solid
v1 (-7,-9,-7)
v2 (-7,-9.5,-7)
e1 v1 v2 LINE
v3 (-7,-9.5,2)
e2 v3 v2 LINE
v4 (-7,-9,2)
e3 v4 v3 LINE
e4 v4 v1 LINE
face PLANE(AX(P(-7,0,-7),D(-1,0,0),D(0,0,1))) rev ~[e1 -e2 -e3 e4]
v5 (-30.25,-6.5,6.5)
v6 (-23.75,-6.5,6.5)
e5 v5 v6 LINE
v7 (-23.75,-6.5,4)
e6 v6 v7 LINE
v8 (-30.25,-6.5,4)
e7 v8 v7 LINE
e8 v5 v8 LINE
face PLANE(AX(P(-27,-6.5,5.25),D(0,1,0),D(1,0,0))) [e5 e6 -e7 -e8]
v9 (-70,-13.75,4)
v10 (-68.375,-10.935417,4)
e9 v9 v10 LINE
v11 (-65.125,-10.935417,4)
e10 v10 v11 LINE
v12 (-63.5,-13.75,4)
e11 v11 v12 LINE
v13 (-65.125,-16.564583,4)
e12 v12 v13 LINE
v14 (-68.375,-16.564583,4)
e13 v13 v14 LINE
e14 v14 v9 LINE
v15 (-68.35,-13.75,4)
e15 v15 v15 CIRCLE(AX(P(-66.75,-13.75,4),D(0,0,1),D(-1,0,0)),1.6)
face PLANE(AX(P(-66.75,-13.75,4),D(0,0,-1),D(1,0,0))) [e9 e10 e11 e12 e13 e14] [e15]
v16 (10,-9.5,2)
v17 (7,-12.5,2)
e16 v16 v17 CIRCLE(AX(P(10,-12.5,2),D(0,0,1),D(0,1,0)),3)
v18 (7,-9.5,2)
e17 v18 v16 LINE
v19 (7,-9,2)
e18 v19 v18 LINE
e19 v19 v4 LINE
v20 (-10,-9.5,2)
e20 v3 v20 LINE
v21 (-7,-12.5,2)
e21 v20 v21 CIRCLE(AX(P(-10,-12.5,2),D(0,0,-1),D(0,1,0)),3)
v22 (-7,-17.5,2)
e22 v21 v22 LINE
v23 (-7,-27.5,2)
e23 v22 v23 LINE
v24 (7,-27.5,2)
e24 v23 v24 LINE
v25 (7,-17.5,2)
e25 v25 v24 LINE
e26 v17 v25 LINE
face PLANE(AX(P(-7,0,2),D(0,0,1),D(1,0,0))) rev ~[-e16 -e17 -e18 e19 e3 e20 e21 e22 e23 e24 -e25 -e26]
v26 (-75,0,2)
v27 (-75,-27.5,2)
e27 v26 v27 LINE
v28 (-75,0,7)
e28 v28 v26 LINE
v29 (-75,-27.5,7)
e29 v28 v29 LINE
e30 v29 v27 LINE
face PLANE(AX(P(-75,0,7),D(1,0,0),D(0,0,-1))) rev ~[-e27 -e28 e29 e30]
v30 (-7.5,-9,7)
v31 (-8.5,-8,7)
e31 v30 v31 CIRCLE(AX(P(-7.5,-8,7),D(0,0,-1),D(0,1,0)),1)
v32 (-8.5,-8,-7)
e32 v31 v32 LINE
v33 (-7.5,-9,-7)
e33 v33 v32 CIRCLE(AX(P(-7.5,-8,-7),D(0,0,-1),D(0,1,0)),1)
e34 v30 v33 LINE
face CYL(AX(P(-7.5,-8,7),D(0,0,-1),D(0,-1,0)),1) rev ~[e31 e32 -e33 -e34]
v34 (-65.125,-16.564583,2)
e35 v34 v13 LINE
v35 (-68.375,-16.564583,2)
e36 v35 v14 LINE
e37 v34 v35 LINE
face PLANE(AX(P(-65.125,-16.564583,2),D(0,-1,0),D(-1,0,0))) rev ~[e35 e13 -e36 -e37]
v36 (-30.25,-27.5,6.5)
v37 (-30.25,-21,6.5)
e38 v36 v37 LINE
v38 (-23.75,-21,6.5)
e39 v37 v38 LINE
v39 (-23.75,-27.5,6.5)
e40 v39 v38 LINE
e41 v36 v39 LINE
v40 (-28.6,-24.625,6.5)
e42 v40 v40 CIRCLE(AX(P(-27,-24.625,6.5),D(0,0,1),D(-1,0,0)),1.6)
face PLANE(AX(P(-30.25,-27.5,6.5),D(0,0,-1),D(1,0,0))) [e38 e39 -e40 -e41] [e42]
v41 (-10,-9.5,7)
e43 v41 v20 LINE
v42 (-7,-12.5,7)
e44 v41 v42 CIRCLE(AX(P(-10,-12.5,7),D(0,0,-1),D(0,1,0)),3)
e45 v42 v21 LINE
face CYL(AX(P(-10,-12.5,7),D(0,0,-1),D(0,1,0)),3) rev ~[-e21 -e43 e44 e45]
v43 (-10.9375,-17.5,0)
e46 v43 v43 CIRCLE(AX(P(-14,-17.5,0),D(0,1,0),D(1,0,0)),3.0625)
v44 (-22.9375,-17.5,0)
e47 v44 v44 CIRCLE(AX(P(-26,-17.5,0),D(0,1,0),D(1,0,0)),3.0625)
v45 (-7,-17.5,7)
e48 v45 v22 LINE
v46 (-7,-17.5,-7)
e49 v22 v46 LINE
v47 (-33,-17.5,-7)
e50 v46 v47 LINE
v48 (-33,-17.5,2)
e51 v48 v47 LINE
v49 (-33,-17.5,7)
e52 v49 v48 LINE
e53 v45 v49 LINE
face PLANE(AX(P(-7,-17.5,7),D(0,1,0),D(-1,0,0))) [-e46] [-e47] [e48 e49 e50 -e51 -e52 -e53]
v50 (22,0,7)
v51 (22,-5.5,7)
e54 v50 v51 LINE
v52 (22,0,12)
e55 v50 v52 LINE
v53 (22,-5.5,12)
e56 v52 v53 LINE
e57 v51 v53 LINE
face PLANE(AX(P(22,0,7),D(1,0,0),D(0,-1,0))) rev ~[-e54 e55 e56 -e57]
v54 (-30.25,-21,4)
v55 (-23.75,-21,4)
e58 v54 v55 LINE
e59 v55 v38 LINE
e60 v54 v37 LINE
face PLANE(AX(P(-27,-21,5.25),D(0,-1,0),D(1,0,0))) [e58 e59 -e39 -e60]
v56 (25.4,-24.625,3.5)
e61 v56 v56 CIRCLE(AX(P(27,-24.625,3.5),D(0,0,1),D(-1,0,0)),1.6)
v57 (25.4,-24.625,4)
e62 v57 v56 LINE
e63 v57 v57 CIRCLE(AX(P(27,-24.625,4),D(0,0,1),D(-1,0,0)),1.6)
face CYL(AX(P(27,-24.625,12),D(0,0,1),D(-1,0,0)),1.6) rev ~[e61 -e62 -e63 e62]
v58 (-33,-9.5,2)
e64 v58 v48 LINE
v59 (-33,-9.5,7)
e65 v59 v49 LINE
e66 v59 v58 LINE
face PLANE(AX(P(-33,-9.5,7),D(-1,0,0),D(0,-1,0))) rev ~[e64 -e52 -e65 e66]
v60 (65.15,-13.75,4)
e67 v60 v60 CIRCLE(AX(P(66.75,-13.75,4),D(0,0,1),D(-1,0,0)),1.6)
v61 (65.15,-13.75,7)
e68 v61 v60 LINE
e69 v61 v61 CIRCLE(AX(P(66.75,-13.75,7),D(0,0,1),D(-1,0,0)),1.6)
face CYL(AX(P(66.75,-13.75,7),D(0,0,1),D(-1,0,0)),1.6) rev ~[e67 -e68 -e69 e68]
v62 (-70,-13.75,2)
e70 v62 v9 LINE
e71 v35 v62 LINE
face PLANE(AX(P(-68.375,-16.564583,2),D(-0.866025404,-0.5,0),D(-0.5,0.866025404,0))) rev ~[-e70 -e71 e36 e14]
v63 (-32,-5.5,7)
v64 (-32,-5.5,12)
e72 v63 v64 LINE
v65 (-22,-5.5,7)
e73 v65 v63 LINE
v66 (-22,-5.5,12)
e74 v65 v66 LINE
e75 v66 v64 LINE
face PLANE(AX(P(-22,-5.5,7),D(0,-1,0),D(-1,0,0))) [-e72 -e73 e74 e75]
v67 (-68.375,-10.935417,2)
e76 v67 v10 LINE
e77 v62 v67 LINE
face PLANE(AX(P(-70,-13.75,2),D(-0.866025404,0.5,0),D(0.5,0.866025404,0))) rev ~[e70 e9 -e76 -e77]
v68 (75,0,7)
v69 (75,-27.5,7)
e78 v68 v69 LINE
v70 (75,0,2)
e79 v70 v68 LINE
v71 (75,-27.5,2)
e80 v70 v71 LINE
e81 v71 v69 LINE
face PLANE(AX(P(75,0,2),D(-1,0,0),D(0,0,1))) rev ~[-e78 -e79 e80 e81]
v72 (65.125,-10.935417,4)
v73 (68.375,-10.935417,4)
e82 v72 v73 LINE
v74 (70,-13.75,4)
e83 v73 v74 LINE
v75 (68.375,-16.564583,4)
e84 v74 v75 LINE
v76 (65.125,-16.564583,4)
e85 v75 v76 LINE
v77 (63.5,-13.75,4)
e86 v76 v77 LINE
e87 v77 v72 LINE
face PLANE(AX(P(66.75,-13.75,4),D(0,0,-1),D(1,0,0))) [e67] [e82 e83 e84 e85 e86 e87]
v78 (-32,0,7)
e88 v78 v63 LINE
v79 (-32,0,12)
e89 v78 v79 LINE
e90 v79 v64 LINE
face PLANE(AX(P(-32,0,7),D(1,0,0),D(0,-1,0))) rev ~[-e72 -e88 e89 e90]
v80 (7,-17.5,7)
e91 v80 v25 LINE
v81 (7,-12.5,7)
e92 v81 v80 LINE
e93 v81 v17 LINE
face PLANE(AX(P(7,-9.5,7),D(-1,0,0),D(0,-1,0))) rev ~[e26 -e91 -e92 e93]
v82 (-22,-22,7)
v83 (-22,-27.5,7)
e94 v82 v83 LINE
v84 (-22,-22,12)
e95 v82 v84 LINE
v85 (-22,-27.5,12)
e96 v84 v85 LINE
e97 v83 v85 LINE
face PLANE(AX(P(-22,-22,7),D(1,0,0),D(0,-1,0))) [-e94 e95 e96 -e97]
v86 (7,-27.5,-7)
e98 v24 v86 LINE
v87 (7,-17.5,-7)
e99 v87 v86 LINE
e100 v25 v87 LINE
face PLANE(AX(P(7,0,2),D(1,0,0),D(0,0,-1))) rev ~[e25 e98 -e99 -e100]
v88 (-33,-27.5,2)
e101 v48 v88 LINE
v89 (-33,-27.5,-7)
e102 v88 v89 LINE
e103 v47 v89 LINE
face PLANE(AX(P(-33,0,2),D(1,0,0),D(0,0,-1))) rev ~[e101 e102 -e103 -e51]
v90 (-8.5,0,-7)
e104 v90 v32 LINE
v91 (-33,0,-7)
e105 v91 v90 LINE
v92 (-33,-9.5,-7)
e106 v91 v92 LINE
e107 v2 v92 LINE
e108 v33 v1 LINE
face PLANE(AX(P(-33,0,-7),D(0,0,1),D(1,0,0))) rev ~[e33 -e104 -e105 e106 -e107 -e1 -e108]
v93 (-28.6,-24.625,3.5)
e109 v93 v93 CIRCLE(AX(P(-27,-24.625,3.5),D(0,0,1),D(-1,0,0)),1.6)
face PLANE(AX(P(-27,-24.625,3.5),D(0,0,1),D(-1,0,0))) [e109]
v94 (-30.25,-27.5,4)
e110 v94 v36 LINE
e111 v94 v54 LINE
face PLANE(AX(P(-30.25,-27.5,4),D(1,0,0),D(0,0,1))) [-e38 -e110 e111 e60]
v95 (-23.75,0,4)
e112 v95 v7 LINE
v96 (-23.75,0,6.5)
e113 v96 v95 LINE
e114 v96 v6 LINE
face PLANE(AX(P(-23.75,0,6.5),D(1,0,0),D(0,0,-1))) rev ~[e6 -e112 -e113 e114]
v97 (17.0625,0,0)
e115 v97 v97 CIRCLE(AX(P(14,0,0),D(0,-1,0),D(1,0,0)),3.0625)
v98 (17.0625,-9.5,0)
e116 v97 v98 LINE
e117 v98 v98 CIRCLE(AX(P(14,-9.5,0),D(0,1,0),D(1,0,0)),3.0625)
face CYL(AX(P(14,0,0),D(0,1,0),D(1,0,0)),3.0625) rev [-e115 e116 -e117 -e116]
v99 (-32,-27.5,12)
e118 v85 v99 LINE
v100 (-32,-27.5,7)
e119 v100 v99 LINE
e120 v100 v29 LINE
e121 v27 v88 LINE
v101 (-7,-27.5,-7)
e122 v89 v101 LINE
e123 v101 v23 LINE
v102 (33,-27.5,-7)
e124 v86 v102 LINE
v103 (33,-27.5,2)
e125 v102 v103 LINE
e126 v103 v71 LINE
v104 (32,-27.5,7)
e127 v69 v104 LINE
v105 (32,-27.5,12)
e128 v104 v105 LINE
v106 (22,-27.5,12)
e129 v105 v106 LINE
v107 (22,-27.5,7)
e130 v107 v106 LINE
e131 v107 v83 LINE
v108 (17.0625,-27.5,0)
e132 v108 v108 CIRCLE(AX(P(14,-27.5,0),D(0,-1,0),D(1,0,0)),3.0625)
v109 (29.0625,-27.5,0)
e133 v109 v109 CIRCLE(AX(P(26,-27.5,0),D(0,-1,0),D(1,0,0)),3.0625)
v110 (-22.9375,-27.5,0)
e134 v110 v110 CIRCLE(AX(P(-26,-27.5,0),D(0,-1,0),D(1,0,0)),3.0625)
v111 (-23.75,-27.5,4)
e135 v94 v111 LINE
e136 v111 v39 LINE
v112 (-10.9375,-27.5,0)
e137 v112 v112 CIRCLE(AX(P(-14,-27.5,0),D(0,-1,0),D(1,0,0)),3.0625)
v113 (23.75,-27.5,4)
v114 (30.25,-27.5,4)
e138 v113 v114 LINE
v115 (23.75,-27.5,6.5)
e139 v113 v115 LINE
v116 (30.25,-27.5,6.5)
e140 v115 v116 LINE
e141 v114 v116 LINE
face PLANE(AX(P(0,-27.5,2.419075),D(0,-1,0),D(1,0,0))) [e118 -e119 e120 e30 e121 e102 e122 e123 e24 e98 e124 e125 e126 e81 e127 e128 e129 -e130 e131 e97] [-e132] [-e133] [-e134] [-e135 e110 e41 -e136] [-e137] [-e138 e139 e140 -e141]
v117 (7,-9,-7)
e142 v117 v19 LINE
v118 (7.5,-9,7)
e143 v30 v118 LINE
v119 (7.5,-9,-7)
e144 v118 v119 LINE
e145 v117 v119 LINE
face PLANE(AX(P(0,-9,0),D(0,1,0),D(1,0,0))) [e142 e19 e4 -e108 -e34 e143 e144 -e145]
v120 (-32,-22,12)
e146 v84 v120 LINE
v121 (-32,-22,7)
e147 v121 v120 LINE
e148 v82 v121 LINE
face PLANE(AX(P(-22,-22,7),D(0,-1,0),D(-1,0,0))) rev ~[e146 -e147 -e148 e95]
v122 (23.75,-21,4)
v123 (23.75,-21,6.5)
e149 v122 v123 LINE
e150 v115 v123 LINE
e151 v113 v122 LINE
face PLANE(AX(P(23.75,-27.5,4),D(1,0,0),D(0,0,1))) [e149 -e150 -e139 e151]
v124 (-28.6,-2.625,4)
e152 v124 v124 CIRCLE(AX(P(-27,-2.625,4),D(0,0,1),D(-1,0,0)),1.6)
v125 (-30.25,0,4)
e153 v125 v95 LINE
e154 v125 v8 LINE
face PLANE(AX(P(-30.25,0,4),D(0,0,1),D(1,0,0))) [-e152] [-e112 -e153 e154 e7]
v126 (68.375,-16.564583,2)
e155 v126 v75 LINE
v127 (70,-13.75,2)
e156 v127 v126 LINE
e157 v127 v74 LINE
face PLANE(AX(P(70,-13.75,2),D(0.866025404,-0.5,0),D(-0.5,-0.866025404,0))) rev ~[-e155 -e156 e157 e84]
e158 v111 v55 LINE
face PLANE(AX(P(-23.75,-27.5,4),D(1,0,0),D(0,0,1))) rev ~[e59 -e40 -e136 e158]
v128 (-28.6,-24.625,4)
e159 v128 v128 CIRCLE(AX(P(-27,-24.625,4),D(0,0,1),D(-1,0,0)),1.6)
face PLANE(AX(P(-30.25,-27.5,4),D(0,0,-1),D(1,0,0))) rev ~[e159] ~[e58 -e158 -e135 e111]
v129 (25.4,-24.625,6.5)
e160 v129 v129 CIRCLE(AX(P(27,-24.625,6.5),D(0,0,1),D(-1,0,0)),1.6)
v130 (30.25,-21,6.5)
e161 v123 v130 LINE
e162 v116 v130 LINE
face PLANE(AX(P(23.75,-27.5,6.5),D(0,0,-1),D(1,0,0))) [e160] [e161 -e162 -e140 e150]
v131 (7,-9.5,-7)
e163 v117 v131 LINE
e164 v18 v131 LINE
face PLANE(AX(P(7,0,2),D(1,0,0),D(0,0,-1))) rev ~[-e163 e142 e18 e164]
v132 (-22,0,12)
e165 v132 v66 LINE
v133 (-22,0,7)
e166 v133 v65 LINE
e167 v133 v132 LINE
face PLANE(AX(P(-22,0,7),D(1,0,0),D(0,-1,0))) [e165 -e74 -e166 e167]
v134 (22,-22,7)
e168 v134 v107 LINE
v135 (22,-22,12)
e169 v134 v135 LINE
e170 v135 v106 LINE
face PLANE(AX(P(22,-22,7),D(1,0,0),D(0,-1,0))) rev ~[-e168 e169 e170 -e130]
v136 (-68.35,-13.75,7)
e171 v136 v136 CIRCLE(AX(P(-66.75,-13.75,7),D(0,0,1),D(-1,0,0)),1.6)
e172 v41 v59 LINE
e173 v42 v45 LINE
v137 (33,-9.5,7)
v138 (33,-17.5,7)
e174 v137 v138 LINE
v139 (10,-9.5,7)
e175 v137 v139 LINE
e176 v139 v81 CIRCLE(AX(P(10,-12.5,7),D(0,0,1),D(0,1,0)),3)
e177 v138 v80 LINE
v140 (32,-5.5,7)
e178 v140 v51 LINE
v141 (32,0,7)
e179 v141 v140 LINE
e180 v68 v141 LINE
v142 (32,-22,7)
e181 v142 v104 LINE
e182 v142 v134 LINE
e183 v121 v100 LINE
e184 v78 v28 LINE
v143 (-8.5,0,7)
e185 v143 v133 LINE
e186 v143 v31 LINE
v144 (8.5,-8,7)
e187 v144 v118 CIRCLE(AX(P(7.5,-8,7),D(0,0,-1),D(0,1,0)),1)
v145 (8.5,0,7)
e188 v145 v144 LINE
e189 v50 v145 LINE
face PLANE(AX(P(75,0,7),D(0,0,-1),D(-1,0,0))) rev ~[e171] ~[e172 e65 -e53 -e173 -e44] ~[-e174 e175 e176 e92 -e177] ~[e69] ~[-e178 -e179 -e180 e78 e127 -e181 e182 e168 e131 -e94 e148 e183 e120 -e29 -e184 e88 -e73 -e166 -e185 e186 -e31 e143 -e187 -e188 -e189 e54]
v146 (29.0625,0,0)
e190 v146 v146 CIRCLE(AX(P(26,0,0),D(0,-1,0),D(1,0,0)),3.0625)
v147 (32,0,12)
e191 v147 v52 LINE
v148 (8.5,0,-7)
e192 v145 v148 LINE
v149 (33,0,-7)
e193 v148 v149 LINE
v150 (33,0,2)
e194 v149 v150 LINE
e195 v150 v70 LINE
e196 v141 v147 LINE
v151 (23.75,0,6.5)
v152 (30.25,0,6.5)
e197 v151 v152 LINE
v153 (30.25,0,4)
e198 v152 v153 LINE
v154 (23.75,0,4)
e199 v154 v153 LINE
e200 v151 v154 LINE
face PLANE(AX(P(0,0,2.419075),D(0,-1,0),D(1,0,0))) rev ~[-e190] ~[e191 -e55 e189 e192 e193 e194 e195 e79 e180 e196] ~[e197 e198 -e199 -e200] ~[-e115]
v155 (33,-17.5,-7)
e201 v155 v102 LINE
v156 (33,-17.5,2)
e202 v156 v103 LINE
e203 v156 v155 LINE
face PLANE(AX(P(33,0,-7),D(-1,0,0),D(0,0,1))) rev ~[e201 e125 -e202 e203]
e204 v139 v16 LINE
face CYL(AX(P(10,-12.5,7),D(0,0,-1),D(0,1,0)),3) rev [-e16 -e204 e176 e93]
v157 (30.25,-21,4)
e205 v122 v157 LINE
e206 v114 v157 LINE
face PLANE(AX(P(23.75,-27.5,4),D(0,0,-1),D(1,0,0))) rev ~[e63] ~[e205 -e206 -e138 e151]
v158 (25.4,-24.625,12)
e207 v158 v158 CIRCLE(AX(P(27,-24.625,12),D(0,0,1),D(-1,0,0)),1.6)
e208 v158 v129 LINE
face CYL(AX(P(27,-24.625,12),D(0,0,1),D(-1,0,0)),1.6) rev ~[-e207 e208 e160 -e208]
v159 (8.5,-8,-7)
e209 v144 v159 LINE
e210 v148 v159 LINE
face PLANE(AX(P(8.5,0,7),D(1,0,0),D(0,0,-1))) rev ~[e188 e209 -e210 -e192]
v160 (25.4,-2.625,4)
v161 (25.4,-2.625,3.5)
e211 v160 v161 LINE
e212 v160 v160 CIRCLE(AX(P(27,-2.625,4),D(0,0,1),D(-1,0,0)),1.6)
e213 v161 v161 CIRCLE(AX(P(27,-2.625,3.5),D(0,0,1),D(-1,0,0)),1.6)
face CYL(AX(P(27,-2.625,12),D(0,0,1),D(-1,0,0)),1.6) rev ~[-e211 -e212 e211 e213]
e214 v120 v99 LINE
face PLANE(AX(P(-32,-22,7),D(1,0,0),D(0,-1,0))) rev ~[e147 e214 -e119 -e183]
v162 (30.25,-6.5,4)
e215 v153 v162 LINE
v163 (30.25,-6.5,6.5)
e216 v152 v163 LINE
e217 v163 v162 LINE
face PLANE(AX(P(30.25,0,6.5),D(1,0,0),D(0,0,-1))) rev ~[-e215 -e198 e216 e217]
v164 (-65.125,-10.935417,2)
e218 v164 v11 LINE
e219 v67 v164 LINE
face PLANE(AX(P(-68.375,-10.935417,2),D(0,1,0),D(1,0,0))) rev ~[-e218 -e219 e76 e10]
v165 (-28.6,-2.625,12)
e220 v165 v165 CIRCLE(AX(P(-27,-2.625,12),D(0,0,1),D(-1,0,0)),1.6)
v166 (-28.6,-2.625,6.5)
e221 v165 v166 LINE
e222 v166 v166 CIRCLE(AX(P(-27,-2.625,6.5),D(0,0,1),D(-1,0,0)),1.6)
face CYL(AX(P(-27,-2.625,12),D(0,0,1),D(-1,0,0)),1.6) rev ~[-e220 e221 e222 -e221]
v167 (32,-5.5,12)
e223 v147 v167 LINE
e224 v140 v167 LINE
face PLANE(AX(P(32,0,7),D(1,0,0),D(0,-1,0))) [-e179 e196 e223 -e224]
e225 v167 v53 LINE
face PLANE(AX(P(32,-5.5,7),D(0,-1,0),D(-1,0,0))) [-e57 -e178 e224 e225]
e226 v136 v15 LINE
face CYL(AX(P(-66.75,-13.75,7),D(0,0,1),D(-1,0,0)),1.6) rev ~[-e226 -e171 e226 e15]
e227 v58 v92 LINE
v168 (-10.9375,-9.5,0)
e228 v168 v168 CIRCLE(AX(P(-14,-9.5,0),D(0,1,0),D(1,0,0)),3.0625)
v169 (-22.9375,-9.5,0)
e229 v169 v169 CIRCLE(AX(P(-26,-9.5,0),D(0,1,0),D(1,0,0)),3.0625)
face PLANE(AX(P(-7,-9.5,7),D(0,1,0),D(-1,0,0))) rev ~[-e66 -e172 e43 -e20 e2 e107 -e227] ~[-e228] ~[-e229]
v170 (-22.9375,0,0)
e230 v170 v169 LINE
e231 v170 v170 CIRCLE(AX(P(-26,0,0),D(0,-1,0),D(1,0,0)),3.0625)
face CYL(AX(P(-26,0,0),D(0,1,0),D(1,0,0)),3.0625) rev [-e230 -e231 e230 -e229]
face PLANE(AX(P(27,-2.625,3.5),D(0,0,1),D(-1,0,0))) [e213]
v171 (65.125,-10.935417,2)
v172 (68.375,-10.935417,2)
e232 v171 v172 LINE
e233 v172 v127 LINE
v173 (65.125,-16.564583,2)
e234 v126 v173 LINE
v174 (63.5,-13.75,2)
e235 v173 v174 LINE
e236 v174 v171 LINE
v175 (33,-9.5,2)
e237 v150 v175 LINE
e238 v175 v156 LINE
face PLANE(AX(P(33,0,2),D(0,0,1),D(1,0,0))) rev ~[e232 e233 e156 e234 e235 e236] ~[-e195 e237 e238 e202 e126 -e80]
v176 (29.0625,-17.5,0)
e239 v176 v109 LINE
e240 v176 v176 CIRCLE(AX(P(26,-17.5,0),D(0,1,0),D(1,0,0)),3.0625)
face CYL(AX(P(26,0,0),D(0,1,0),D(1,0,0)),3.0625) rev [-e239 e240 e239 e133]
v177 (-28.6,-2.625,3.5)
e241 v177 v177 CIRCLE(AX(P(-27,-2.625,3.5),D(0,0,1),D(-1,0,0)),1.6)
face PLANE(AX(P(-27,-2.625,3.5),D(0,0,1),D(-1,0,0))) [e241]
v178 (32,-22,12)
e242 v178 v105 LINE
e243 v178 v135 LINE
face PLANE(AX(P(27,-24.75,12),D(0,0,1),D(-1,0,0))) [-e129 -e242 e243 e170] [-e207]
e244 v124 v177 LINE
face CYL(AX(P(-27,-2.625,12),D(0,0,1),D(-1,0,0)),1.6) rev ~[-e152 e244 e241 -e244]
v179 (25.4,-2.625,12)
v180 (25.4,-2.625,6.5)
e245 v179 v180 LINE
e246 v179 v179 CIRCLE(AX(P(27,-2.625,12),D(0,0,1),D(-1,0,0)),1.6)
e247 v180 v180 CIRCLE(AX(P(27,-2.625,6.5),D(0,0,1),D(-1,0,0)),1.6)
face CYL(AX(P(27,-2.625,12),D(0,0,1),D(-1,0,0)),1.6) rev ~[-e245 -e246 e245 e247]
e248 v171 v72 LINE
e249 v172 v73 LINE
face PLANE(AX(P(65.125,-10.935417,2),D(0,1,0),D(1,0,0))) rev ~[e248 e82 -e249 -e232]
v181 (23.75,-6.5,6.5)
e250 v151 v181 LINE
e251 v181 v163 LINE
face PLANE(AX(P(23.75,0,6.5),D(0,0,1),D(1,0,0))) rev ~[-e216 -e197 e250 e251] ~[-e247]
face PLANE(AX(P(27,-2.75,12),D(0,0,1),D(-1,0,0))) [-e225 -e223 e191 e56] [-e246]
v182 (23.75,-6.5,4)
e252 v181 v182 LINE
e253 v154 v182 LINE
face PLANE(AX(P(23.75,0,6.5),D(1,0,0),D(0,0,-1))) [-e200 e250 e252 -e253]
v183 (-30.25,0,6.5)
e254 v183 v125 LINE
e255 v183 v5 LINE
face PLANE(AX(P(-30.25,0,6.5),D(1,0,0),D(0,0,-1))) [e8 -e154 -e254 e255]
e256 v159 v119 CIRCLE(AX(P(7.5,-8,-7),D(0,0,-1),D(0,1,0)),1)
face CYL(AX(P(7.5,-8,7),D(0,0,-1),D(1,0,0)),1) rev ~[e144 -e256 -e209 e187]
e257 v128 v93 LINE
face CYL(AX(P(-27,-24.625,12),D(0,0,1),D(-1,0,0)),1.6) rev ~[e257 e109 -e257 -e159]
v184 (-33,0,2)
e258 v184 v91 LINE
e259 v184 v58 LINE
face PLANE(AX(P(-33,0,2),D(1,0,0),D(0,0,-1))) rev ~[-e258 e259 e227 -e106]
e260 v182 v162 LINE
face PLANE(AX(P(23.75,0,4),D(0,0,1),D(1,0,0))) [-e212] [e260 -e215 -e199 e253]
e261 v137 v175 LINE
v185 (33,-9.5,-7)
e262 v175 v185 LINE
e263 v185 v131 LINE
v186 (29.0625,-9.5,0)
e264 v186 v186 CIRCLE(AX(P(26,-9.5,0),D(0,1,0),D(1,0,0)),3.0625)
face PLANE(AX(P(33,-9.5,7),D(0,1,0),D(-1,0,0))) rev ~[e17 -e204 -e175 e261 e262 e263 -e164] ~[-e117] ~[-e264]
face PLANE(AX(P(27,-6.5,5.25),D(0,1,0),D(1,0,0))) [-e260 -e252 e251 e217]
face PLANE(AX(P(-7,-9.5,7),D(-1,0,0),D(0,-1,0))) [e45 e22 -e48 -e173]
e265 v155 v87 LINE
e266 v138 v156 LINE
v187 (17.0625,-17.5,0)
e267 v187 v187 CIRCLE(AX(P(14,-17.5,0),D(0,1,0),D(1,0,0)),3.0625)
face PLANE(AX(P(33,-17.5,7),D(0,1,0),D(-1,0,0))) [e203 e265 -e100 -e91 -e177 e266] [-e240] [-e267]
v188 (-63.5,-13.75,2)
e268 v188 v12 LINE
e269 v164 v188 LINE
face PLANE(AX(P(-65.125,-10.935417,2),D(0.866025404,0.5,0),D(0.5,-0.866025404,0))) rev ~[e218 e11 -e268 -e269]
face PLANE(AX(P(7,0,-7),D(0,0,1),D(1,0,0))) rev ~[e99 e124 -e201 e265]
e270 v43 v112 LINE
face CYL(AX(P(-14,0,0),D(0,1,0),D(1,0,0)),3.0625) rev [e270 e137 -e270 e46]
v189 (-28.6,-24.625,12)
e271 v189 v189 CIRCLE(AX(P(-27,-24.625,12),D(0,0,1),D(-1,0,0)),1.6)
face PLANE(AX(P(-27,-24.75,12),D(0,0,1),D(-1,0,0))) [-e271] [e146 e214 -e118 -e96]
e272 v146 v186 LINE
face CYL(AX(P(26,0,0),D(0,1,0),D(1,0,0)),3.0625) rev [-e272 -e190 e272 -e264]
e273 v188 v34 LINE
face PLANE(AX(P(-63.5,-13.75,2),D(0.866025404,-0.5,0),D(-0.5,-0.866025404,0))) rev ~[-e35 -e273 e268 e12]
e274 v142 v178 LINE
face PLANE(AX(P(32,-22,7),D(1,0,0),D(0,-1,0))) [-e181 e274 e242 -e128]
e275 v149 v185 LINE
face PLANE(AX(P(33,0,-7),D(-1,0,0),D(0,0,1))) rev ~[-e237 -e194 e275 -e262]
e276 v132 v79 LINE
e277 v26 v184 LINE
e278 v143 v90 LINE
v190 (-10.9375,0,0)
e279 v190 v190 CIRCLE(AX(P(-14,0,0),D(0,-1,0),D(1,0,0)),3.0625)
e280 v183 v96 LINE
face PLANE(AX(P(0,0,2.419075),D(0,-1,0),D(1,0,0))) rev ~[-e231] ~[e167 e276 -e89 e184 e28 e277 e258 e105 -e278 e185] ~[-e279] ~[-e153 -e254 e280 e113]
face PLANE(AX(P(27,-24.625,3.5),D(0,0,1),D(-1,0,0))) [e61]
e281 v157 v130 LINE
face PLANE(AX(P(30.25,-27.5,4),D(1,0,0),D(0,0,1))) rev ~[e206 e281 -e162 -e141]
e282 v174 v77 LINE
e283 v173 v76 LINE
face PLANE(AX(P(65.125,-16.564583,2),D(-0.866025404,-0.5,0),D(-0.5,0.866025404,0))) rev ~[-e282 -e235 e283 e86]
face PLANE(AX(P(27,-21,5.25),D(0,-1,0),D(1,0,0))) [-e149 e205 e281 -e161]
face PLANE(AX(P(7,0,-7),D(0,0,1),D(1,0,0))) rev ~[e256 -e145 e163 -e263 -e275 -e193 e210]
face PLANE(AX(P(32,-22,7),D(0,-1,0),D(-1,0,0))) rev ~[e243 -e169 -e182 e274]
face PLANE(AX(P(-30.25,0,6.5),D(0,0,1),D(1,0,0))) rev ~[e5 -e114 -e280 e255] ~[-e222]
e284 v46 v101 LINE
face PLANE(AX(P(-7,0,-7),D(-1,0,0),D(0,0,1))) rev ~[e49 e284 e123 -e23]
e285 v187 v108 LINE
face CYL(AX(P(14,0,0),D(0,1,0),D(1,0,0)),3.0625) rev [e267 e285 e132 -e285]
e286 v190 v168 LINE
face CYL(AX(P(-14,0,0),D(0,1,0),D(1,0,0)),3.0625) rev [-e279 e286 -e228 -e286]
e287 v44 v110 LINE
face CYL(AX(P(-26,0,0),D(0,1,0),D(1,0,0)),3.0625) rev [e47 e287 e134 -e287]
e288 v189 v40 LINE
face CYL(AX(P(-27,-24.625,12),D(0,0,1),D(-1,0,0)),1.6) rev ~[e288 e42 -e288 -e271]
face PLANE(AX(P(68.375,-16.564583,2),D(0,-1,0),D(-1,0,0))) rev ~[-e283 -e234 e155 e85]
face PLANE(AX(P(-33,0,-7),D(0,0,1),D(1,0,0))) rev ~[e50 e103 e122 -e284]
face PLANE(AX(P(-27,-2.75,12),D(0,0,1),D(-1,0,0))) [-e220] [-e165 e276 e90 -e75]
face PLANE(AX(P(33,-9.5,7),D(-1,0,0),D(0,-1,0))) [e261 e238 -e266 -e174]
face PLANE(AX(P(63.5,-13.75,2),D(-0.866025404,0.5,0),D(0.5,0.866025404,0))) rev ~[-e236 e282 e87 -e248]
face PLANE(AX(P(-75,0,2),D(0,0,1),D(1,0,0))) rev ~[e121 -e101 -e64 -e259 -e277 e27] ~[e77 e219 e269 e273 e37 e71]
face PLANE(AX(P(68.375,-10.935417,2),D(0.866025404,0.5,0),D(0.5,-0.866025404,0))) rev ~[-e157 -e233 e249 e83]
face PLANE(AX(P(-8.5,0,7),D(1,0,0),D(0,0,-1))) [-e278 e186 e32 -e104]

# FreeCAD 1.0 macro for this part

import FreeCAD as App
import Part
import Sketcher

V = App.Vector
Q = App.Units.Quantity


def edges_at(feature, points):
    """Names of the edges that pass closest to the given points."""
    edges = feature.Shape.Edges
    near = lambda p: min(range(len(edges)), key=lambda i: edges[i].distToShape(Part.Vertex(*p))[0])
    return sorted({f"Edge{near(p) + 1}" for p in points})

doc = App.newDocument("Part")
params = doc.addObject("Spreadsheet::Sheet", "Params")
for row, (alias, value) in enumerate([
    ("sketch1_width", "42 mm"),
    ("sketch1_width2", "150 mm"),
    ("sketch1_width3", "26 mm"),
    ("sketch1_height", "9 mm"),
    ("sketch1_height2", "5 mm"),
    ("pad1_length", "27.5 mm"),
    ("sketch2_diameter", "3.2 mm"),
    ("pocket1_length", "5 mm"),
    ("sketch3_width", "3.25 mm"),
    ("pocket2_length", "2 mm"),
    ("sketch4_width", "26 mm"),
    ("sketch4_height", "8 mm"),
    ("pocket3_length", "14 mm"),
    ("sketch5_width", "10 mm"),
    ("sketch5_height", "5.5 mm"),
    ("pad2_length", "5 mm"),
    ("sketch6_diameter", "3.2 mm"),
    ("pocket4_length", "8.5 mm"),
    ("sketch7_width", "6.5 mm"),
    ("sketch7_height", "2.5 mm"),
    ("pocket5_length", "6.5 mm"),
    ("sketch8_width", "6.5 mm"),
    ("sketch8_height", "2.5 mm"),
    ("pocket6_length", "6.5 mm"),
    ("sketch9_width", "17 mm"),
    ("sketch9_height", "14 mm"),
    ("pocket7_length", "9 mm"),
    ("fillet_radius", "1 mm"),
    ("fillet2_radius", "3 mm"),
], start=1):
    params.set(f"A{row}", alias)
    params.set(f"B{row}", "=" + value)
    params.setAlias(f"B{row}", alias)

body = doc.addObject("PartDesign::Body", "Body")

# Sketch on XZ plane
sketch1 = body.newObject("Sketcher::SketchObject", "Sketch")
sketch1.AttachmentSupport = (doc.getObject("XZ_Plane"), [""])
sketch1.MapMode = "FlatFace"
sketch1.addGeometry([
    Part.LineSegment(V(33, -7, 0), V(33, 2, 0)),  # 0
    Part.LineSegment(V(33, 2, 0), V(75, 2, 0)),  # 1
    Part.LineSegment(V(75, 2, 0), V(75, 7, 0)),  # 2
    Part.LineSegment(V(75, 7, 0), V(-75, 7, 0)),  # 3
    Part.LineSegment(V(-75, 7, 0), V(-75, 2, 0)),  # 4
    Part.LineSegment(V(-75, 2, 0), V(-33, 2, 0)),  # 5
    Part.LineSegment(V(-33, 2, 0), V(-33, -7, 0)),  # 6
    Part.LineSegment(V(-33, -7, 0), V(-7, -7, 0)),  # 7
    Part.LineSegment(V(-7, -7, 0), V(-7, 2, 0)),  # 8
    Part.LineSegment(V(-7, 2, 0), V(7, 2, 0)),  # 9
    Part.LineSegment(V(7, 2, 0), V(7, -7, 0)),  # 10
    Part.LineSegment(V(7, -7, 0), V(33, -7, 0)),  # 11
    Part.Circle(V(-26, 0, 0), V(0, 0, 1), 3.1),  # 12
    Part.Circle(V(-14, 0, 0), V(0, 0, 1), 3.1),  # 13
    Part.Circle(V(14, 0, 0), V(0, 0, 1), 3.1),  # 14
    Part.Circle(V(26, 0, 0), V(0, 0, 1), 3.1),  # 15
], False)
sketch1.addConstraint([
    Sketcher.Constraint("Coincident", 0, 2, 1, 1),
    Sketcher.Constraint("Coincident", 1, 2, 2, 1),
    Sketcher.Constraint("Coincident", 2, 2, 3, 1),
    Sketcher.Constraint("Coincident", 3, 2, 4, 1),
    Sketcher.Constraint("Coincident", 4, 2, 5, 1),
    Sketcher.Constraint("Coincident", 5, 2, 6, 1),
    Sketcher.Constraint("Coincident", 6, 2, 7, 1),
    Sketcher.Constraint("Coincident", 7, 2, 8, 1),
    Sketcher.Constraint("Coincident", 8, 2, 9, 1),
    Sketcher.Constraint("Coincident", 9, 2, 10, 1),
    Sketcher.Constraint("Coincident", 10, 2, 11, 1),
    Sketcher.Constraint("Coincident", 11, 2, 0, 1),
    Sketcher.Constraint("Vertical", 0),
    Sketcher.Constraint("Horizontal", 1),
    Sketcher.Constraint("Vertical", 2),
    Sketcher.Constraint("Horizontal", 3),
    Sketcher.Constraint("Vertical", 4),
    Sketcher.Constraint("Horizontal", 5),
    Sketcher.Constraint("Vertical", 6),
    Sketcher.Constraint("Horizontal", 7),
    Sketcher.Constraint("Vertical", 8),
    Sketcher.Constraint("Horizontal", 9),
    Sketcher.Constraint("Vertical", 10),
    Sketcher.Constraint("Horizontal", 11),
    Sketcher.Constraint("Equal", 12, 13),
    Sketcher.Constraint("Equal", 13, 14),
    Sketcher.Constraint("Equal", 14, 15),
    Sketcher.Constraint("Symmetric", 13, 3, 14, 3, -1, 1),
    Sketcher.Constraint("Symmetric", 12, 3, 15, 3, -1, 1),
    Sketcher.Constraint("Symmetric", 1, 2, 4, 2, -2),
    Sketcher.Constraint("Symmetric", 7, 2, 10, 2, -2),
    Sketcher.Constraint("PointOnObject", 12, 3, -1),
    Sketcher.Constraint("PointOnObject", 13, 3, -1),
    Sketcher.Constraint("Horizontal", 5, 2, 8, 2),
    Sketcher.Constraint("Equal", 1, 5),
    Sketcher.Constraint("DistanceX", 1, 1, 1, 2, 42.0),
    Sketcher.Constraint("DistanceX", 3, 2, 3, 1, 150.0),
    Sketcher.Constraint("DistanceX", 7, 1, 7, 2, 26.0),
    Sketcher.Constraint("DistanceY", 0, 1, 0, 2, 9.0),
    Sketcher.Constraint("DistanceY", 2, 1, 2, 2, 5.0),
    Sketcher.Constraint("Diameter", 12, 6.125),
    Sketcher.Constraint("DistanceX", 12, 3, -1, 1, 26.0),
    Sketcher.Constraint("DistanceX", 13, 3, -1, 1, 14.0),
    Sketcher.Constraint("DistanceY", -1, 1, 0, 2, 2.0),
])
sketch1.setExpression("Constraints[35]", "Params.sketch1_width")
sketch1.setExpression("Constraints[36]", "Params.sketch1_width2")
sketch1.setExpression("Constraints[37]", "Params.sketch1_width3")
sketch1.setExpression("Constraints[38]", "Params.sketch1_height")
sketch1.setExpression("Constraints[39]", "Params.sketch1_height2")
pad1 = body.newObject("PartDesign::Pad", "Pad")
pad1.Profile = sketch1
pad1.setExpression("Length", "Params.pad1_length")

# Sketch on XY plane
sketch2 = body.newObject("Sketcher::SketchObject", "Sketch001")
sketch2.AttachmentSupport = (doc.getObject("XY_Plane"), [""])
sketch2.MapMode = "FlatFace"
sketch2.AttachmentOffset = App.Placement(V(0, 0, 7), App.Rotation())
sketch2.addGeometry([
    Part.Circle(V(66.8, -13.8, 0), V(0, 0, 1), 1.6),
    Part.Circle(V(-66.8, -13.8, 0), V(0, 0, 1), 1.6),
], False)
sketch2.addConstraint([
    Sketcher.Constraint("Equal", 0, 1),
    Sketcher.Constraint("Symmetric", 0, 3, 1, 3, -2),
    Sketcher.Constraint("Diameter", 0, 3.2),
    Sketcher.Constraint("DistanceX", 1, 3, 0, 3, 133.5),
    Sketcher.Constraint("DistanceY", 0, 3, -1, 1, 13.75),
])
sketch2.setExpression("Constraints[2]", "Params.sketch2_diameter")
pocket1 = body.newObject("PartDesign::Pocket", "Pocket")
pocket1.Profile = sketch2
pocket1.setExpression("Length", "Params.pocket1_length")

# Sketch on XY plane
sketch3 = body.newObject("Sketcher::SketchObject", "Sketch002")
sketch3.AttachmentSupport = (doc.getObject("XY_Plane"), [""])
sketch3.MapMode = "FlatFace"
sketch3.AttachmentOffset = App.Placement(V(0, 0, 2), App.Rotation())
sketch3.addGeometry([
    Part.LineSegment(V(-63.5, -13.8, 0), V(-65.1, -16.6, 0)),  # 0
    Part.LineSegment(V(-65.1, -16.6, 0), V(-68.4, -16.6, 0)),  # 1
    Part.LineSegment(V(-68.4, -16.6, 0), V(-70, -13.8, 0)),  # 2
    Part.LineSegment(V(-70, -13.8, 0), V(-68.4, -10.9, 0)),  # 3
    Part.LineSegment(V(-68.4, -10.9, 0), V(-65.1, -10.9, 0)),  # 4
    Part.LineSegment(V(-65.1, -10.9, 0), V(-63.5, -13.8, 0)),  # 5
    Part.LineSegment(V(70, -13.8, 0), V(68.4, -16.6, 0)),  # 6
    Part.LineSegment(V(68.4, -16.6, 0), V(65.1, -16.6, 0)),  # 7
    Part.LineSegment(V(65.1, -16.6, 0), V(63.5, -13.8, 0)),  # 8
    Part.LineSegment(V(63.5, -13.8, 0), V(65.1, -10.9, 0)),  # 9
    Part.LineSegment(V(65.1, -10.9, 0), V(68.4, -10.9, 0)),  # 10
    Part.LineSegment(V(68.4, -10.9, 0), V(70, -13.8, 0)),  # 11
], False)
sketch3.addConstraint([
    Sketcher.Constraint("Coincident", 0, 2, 1, 1),
    Sketcher.Constraint("Coincident", 1, 2, 2, 1),
    Sketcher.Constraint("Coincident", 2, 2, 3, 1),
    Sketcher.Constraint("Coincident", 3, 2, 4, 1),
    Sketcher.Constraint("Coincident", 4, 2, 5, 1),
    Sketcher.Constraint("Coincident", 5, 2, 0, 1),
    Sketcher.Constraint("Coincident", 6, 2, 7, 1),
    Sketcher.Constraint("Coincident", 7, 2, 8, 1),
    Sketcher.Constraint("Coincident", 8, 2, 9, 1),
    Sketcher.Constraint("Coincident", 9, 2, 10, 1),
    Sketcher.Constraint("Coincident", 10, 2, 11, 1),
    Sketcher.Constraint("Coincident", 11, 2, 6, 1),
    Sketcher.Constraint("Horizontal", 1),
    Sketcher.Constraint("Horizontal", 4),
    Sketcher.Constraint("Horizontal", 7),
    Sketcher.Constraint("Horizontal", 10),
    Sketcher.Constraint("Symmetric", 1, 2, 6, 2, -2),
    Sketcher.Constraint("Symmetric", 5, 2, 8, 2, -2),
    Sketcher.Constraint("Symmetric", 4, 2, 9, 2, -2),
    Sketcher.Constraint("Symmetric", 2, 2, 11, 2, -2),
    Sketcher.Constraint("Parallel", 0, 3),
    Sketcher.Constraint("Parallel", 2, 5),
    Sketcher.Constraint("Parallel", 3, 6),
    Sketcher.Constraint("Parallel", 5, 8),
    Sketcher.Constraint("Parallel", 8, 11),
    Sketcher.Constraint("Horizontal", 2, 2, 5, 2),
    Sketcher.Constraint("Vertical", 1, 2, 3, 2),
    Sketcher.Constraint("Angle", 0, Q("-120 deg")),
    Sketcher.Constraint("DistanceX", 2, 2, -1, 1, 70.0),
    Sketcher.Constraint("DistanceX", 5, 2, 8, 2, 127.0),
    Sketcher.Constraint("DistanceX", 1, 2, 1, 1, 3.25),
    Sketcher.Constraint("DistanceY", 2, 2, -1, 1, 13.75),
])
sketch3.setExpression("Constraints[30]", "Params.sketch3_width")
pocket2 = body.newObject("PartDesign::Pocket", "Pocket001")
pocket2.Profile = sketch3
pocket2.setExpression("Length", "Params.pocket2_length")
pocket2.Reversed = True

# Sketch on XY plane
sketch4 = body.newObject("Sketcher::SketchObject", "Sketch003")
sketch4.AttachmentSupport = (doc.getObject("XY_Plane"), [""])
sketch4.MapMode = "FlatFace"
sketch4.AttachmentOffset = App.Placement(V(0, 0, 7), App.Rotation())
sketch4.addGeometry([
    Part.LineSegment(V(33, -18, 0), V(33, -10, 0)),  # 0
    Part.LineSegment(V(33, -10, 0), V(7, -10, 0)),  # 1
    Part.LineSegment(V(7, -10, 0), V(7, -18, 0)),  # 2
    Part.LineSegment(V(7, -18, 0), V(33, -18, 0)),  # 3
    Part.LineSegment(V(-7, -18, 0), V(-7, -10, 0)),  # 4
    Part.LineSegment(V(-7, -10, 0), V(-33, -10, 0)),  # 5
    Part.LineSegment(V(-33, -10, 0), V(-33, -18, 0)),  # 6
    Part.LineSegment(V(-33, -18, 0), V(-7, -18, 0)),  # 7
], False)
sketch4.addConstraint([
    Sketcher.Constraint("Coincident", 0, 2, 1, 1),
    Sketcher.Constraint("Coincident", 1, 2, 2, 1),
    Sketcher.Constraint("Coincident", 2, 2, 3, 1),
    Sketcher.Constraint("Coincident", 3, 2, 0, 1),
    Sketcher.Constraint("Coincident", 4, 2, 5, 1),
    Sketcher.Constraint("Coincident", 5, 2, 6, 1),
    Sketcher.Constraint("Coincident", 6, 2, 7, 1),
    Sketcher.Constraint("Coincident", 7, 2, 4, 1),
    Sketcher.Constraint("Vertical", 0),
    Sketcher.Constraint("Horizontal", 1),
    Sketcher.Constraint("Vertical", 2),
    Sketcher.Constraint("Horizontal", 3),
    Sketcher.Constraint("Vertical", 4),
    Sketcher.Constraint("Horizontal", 5),
    Sketcher.Constraint("Vertical", 6),
    Sketcher.Constraint("Horizontal", 7),
    Sketcher.Constraint("Symmetric", 1, 2, 4, 2, -2),
    Sketcher.Constraint("Symmetric", 3, 2, 6, 2, -2),
    Sketcher.Constraint("DistanceX", 1, 2, 1, 1, 26.0),
    Sketcher.Constraint("DistanceY", 0, 1, 0, 2, 8.0),
    Sketcher.Constraint("DistanceX", -1, 1, 0, 2, 33.0),
    Sketcher.Constraint("DistanceY", 0, 2, -1, 1, 9.5),
])
sketch4.setExpression("Constraints[18]", "Params.sketch4_width")
sketch4.setExpression("Constraints[19]", "Params.sketch4_height")
pocket3 = body.newObject("PartDesign::Pocket", "Pocket002")
pocket3.Profile = sketch4
pocket3.setExpression("Length", "Params.pocket3_length")

# Sketch on XY plane
sketch5 = body.newObject("Sketcher::SketchObject", "Sketch004")
sketch5.AttachmentSupport = (doc.getObject("XY_Plane"), [""])
sketch5.MapMode = "FlatFace"
sketch5.AttachmentOffset = App.Placement(V(0, 0, 7), App.Rotation())
sketch5.addGeometry([
    Part.LineSegment(V(32, -28, 0), V(32, -22, 0)),  # 0
    Part.LineSegment(V(32, -22, 0), V(22, -22, 0)),  # 1
    Part.LineSegment(V(22, -22, 0), V(22, -28, 0)),  # 2
    Part.LineSegment(V(22, -28, 0), V(32, -28, 0)),  # 3
    Part.LineSegment(V(-22, -28, 0), V(-22, -22, 0)),  # 4
    Part.LineSegment(V(-22, -22, 0), V(-32, -22, 0)),  # 5
    Part.LineSegment(V(-32, -22, 0), V(-32, -28, 0)),  # 6
    Part.LineSegment(V(-32, -28, 0), V(-22, -28, 0)),  # 7
    Part.LineSegment(V(32, -6, 0), V(32, 0, 0)),  # 8
    Part.LineSegment(V(32, 0, 0), V(22, 0, 0)),  # 9
    Part.LineSegment(V(22, 0, 0), V(22, -6, 0)),  # 10
    Part.LineSegment(V(22, -6, 0), V(32, -6, 0)),  # 11
    Part.LineSegment(V(-22, -6, 0), V(-22, 0, 0)),  # 12
    Part.LineSegment(V(-22, 0, 0), V(-32, 0, 0)),  # 13
    Part.LineSegment(V(-32, 0, 0), V(-32, -6, 0)),  # 14
    Part.LineSegment(V(-32, -6, 0), V(-22, -6, 0)),  # 15
], False)
sketch5.addConstraint([
    Sketcher.Constraint("Coincident", 0, 2, 1, 1),
    Sketcher.Constraint("Coincident", 1, 2, 2, 1),
    Sketcher.Constraint("Coincident", 2, 2, 3, 1),
    Sketcher.Constraint("Coincident", 3, 2, 0, 1),
    Sketcher.Constraint("Coincident", 4, 2, 5, 1),
    Sketcher.Constraint("Coincident", 5, 2, 6, 1),
    Sketcher.Constraint("Coincident", 6, 2, 7, 1),
    Sketcher.Constraint("Coincident", 7, 2, 4, 1),
    Sketcher.Constraint("Coincident", 8, 2, 9, 1),
    Sketcher.Constraint("Coincident", 9, 2, 10, 1),
    Sketcher.Constraint("Coincident", 10, 2, 11, 1),
    Sketcher.Constraint("Coincident", 11, 2, 8, 1),
    Sketcher.Constraint("Coincident", 12, 2, 13, 1),
    Sketcher.Constraint("Coincident", 13, 2, 14, 1),
    Sketcher.Constraint("Coincident", 14, 2, 15, 1),
    Sketcher.Constraint("Coincident", 15, 2, 12, 1),
    Sketcher.Constraint("Vertical", 0),
    Sketcher.Constraint("Horizontal", 1),
    Sketcher.Constraint("Vertical", 2),
    Sketcher.Constraint("Horizontal", 3),
    Sketcher.Constraint("Vertical", 4),
    Sketcher.Constraint("Horizontal", 5),
    Sketcher.Constraint("Vertical", 6),
    Sketcher.Constraint("Horizontal", 7),
    Sketcher.Constraint("Vertical", 8),
    Sketcher.Constraint("Horizontal", 9),
    Sketcher.Constraint("Vertical", 10),
    Sketcher.Constraint("Horizontal", 11),
    Sketcher.Constraint("Vertical", 12),
    Sketcher.Constraint("Horizontal", 13),
    Sketcher.Constraint("Vertical", 14),
    Sketcher.Constraint("Horizontal", 15),
    Sketcher.Constraint("Symmetric", 9, 2, 12, 2, -1, 1),
    Sketcher.Constraint("Symmetric", 1, 2, 4, 2, -2),
    Sketcher.Constraint("Symmetric", 3, 2, 6, 2, -2),
    Sketcher.Constraint("Symmetric", 8, 2, 13, 2, -2),
    Sketcher.Constraint("Horizontal", 11, 2, 14, 2),
    Sketcher.Constraint("Vertical", 3, 2, 8, 2),
    Sketcher.Constraint("Vertical", 2, 2, 9, 2),
    Sketcher.Constraint("Equal", 6, 8),
    Sketcher.Constraint("DistanceX", 1, 2, 1, 1, 10.0),
    Sketcher.Constraint("DistanceY", 0, 1, 0, 2, 5.5),
    Sketcher.Constraint("DistanceX", -1, 1, 0, 2, 32.0),
    Sketcher.Constraint("DistanceY", 0, 2, -1, 1, 22.0),
])
sketch5.setExpression("Constraints[40]", "Params.sketch5_width")
sketch5.setExpression("Constraints[41]", "Params.sketch5_height")
pad2 = body.newObject("PartDesign::Pad", "Pad001")
pad2.Profile = sketch5
pad2.setExpression("Length", "Params.pad2_length")

# Sketch on XY plane
sketch6 = body.newObject("Sketcher::SketchObject", "Sketch005")
sketch6.AttachmentSupport = (doc.getObject("XY_Plane"), [""])
sketch6.MapMode = "FlatFace"
sketch6.AttachmentOffset = App.Placement(V(0, 0, 12), App.Rotation())
sketch6.addGeometry([
    Part.Circle(V(27, -24.6, 0), V(0, 0, 1), 1.6),
    Part.Circle(V(27, -2.6, 0), V(0, 0, 1), 1.6),
    Part.Circle(V(-27, -24.6, 0), V(0, 0, 1), 1.6),
    Part.Circle(V(-27, -2.6, 0), V(0, 0, 1), 1.6),
], False)
sketch6.addConstraint([
    Sketcher.Constraint("Equal", 0, 1),
    Sketcher.Constraint("Equal", 1, 2),
    Sketcher.Constraint("Equal", 2, 3),
    Sketcher.Constraint("Symmetric", 0, 3, 2, 3, -2),
    Sketcher.Constraint("Symmetric", 1, 3, 3, 3, -2),
    Sketcher.Constraint("Vertical", 0, 3, 1, 3),
    Sketcher.Constraint("Diameter", 0, 3.2),
    Sketcher.Constraint("DistanceX", -1, 1, 0, 3, 27.0),
    Sketcher.Constraint("DistanceY", 0, 3, 1, 3, 22.0),
    Sketcher.Constraint("DistanceY", 0, 3, -1, 1, 24.625),
])
sketch6.setExpression("Constraints[6]", "Params.sketch6_diameter")
pocket4 = body.newObject("PartDesign::Pocket", "Pocket003")
pocket4.Profile = sketch6
pocket4.setExpression("Length", "Params.pocket4_length")

# Sketch on XZ plane
sketch7 = body.newObject("Sketcher::SketchObject", "Sketch006")
sketch7.AttachmentSupport = (doc.getObject("XZ_Plane"), [""])
sketch7.MapMode = "FlatFace"
sketch7.addGeometry([
    Part.LineSegment(V(-30.2, 4, 0), V(-30.2, 6.5, 0)),  # 0
    Part.LineSegment(V(-30.2, 6.5, 0), V(-23.8, 6.5, 0)),  # 1
    Part.LineSegment(V(-23.8, 6.5, 0), V(-23.8, 4, 0)),  # 2
    Part.LineSegment(V(-23.8, 4, 0), V(-30.2, 4, 0)),  # 3
    Part.LineSegment(V(23.8, 4, 0), V(23.8, 6.5, 0)),  # 4
    Part.LineSegment(V(23.8, 6.5, 0), V(30.2, 6.5, 0)),  # 5
    Part.LineSegment(V(30.2, 6.5, 0), V(30.2, 4, 0)),  # 6
    Part.LineSegment(V(30.2, 4, 0), V(23.8, 4, 0)),  # 7
], False)
sketch7.addConstraint([
    Sketcher.Constraint("Coincident", 0, 2, 1, 1),
    Sketcher.Constraint("Coincident", 1, 2, 2, 1),
    Sketcher.Constraint("Coincident", 2, 2, 3, 1),
    Sketcher.Constraint("Coincident", 3, 2, 0, 1),
    Sketcher.Constraint("Coincident", 4, 2, 5, 1),
    Sketcher.Constraint("Coincident", 5, 2, 6, 1),
    Sketcher.Constraint("Coincident", 6, 2, 7, 1),
    Sketcher.Constraint("Coincident", 7, 2, 4, 1),
    Sketcher.Constraint("Vertical", 0),
    Sketcher.Constraint("Horizontal", 1),
    Sketcher.Constraint("Vertical", 2),
    Sketcher.Constraint("Horizontal", 3),
    Sketcher.Constraint("Vertical", 4),
    Sketcher.Constraint("Horizontal", 5),
    Sketcher.Constraint("Vertical", 6),
    Sketcher.Constraint("Horizontal", 7),
    Sketcher.Constraint("Symmetric", 1, 2, 4, 2, -2),
    Sketcher.Constraint("Symmetric", 3, 2, 6, 2, -2),
    Sketcher.Constraint("DistanceX", 1, 1, 1, 2, 6.5),
    Sketcher.Constraint("DistanceY", 0, 1, 0, 2, 2.5),
    Sketcher.Constraint("DistanceY", -1, 1, 2, 2, 4.0),
    Sketcher.Constraint("DistanceX", 0, 2, 4, 2, 54.0),
])
sketch7.setExpression("Constraints[18]", "Params.sketch7_width")
sketch7.setExpression("Constraints[19]", "Params.sketch7_height")
pocket5 = body.newObject("PartDesign::Pocket", "Pocket004")
pocket5.Profile = sketch7
pocket5.setExpression("Length", "Params.pocket5_length")
pocket5.Reversed = True

# Sketch on XZ plane
sketch8 = body.newObject("Sketcher::SketchObject", "Sketch007")
sketch8.AttachmentSupport = (doc.getObject("XZ_Plane"), [""])
sketch8.MapMode = "FlatFace"
sketch8.AttachmentOffset = App.Placement(V(0, 0, 27.5), App.Rotation())
sketch8.addGeometry([
    Part.LineSegment(V(-30.2, 6.5, 0), V(-30.2, 4, 0)),  # 0
    Part.LineSegment(V(-30.2, 4, 0), V(-23.8, 4, 0)),  # 1
    Part.LineSegment(V(-23.8, 4, 0), V(-23.8, 6.5, 0)),  # 2
    Part.LineSegment(V(-23.8, 6.5, 0), V(-30.2, 6.5, 0)),  # 3
    Part.LineSegment(V(23.8, 6.5, 0), V(23.8, 4, 0)),  # 4
    Part.LineSegment(V(23.8, 4, 0), V(30.2, 4, 0)),  # 5
    Part.LineSegment(V(30.2, 4, 0), V(30.2, 6.5, 0)),  # 6
    Part.LineSegment(V(30.2, 6.5, 0), V(23.8, 6.5, 0)),  # 7
], False)
sketch8.addConstraint([
    Sketcher.Constraint("Coincident", 0, 2, 1, 1),
    Sketcher.Constraint("Coincident", 1, 2, 2, 1),
    Sketcher.Constraint("Coincident", 2, 2, 3, 1),
    Sketcher.Constraint("Coincident", 3, 2, 0, 1),
    Sketcher.Constraint("Coincident", 4, 2, 5, 1),
    Sketcher.Constraint("Coincident", 5, 2, 6, 1),
    Sketcher.Constraint("Coincident", 6, 2, 7, 1),
    Sketcher.Constraint("Coincident", 7, 2, 4, 1),
    Sketcher.Constraint("Vertical", 0),
    Sketcher.Constraint("Horizontal", 1),
    Sketcher.Constraint("Vertical", 2),
    Sketcher.Constraint("Horizontal", 3),
    Sketcher.Constraint("Vertical", 4),
    Sketcher.Constraint("Horizontal", 5),
    Sketcher.Constraint("Vertical", 6),
    Sketcher.Constraint("Horizontal", 7),
    Sketcher.Constraint("Symmetric", 1, 2, 4, 2, -2),
    Sketcher.Constraint("Symmetric", 3, 2, 6, 2, -2),
    Sketcher.Constraint("DistanceX", 1, 1, 1, 2, 6.5),
    Sketcher.Constraint("DistanceY", 0, 2, 0, 1, 2.5),
    Sketcher.Constraint("DistanceY", -1, 1, 0, 2, 4.0),
    Sketcher.Constraint("DistanceX", 0, 2, 4, 2, 54.0),
])
sketch8.setExpression("Constraints[18]", "Params.sketch8_width")
sketch8.setExpression("Constraints[19]", "Params.sketch8_height")
pocket6 = body.newObject("PartDesign::Pocket", "Pocket005")
pocket6.Profile = sketch8
pocket6.setExpression("Length", "Params.pocket6_length")

# Sketch on XZ plane
sketch9 = body.newObject("Sketcher::SketchObject", "Sketch008")
sketch9.AttachmentSupport = (doc.getObject("XZ_Plane"), [""])
sketch9.MapMode = "FlatFace"
sketch9.addGeometry([
    Part.LineSegment(V(-8, -7, 0), V(-8, 7, 0)),
    Part.LineSegment(V(-8, 7, 0), V(8, 7, 0)),
    Part.LineSegment(V(8, 7, 0), V(8, -7, 0)),
    Part.LineSegment(V(8, -7, 0), V(-8, -7, 0)),
], False)
sketch9.addConstraint([
    Sketcher.Constraint("Coincident", 0, 2, 1, 1),
    Sketcher.Constraint("Coincident", 1, 2, 2, 1),
    Sketcher.Constraint("Coincident", 2, 2, 3, 1),
    Sketcher.Constraint("Coincident", 3, 2, 0, 1),
    Sketcher.Constraint("Vertical", 0),
    Sketcher.Constraint("Horizontal", 1),
    Sketcher.Constraint("Vertical", 2),
    Sketcher.Constraint("Horizontal", 3),
    Sketcher.Constraint("Symmetric", 0, 2, 2, 2, -1, 1),
    Sketcher.Constraint("DistanceX", 1, 1, 1, 2, 17.0),
    Sketcher.Constraint("DistanceY", 0, 1, 0, 2, 14.0),
])
sketch9.setExpression("Constraints[9]", "Params.sketch9_width")
sketch9.setExpression("Constraints[10]", "Params.sketch9_height")
pocket7 = body.newObject("PartDesign::Pocket", "Pocket006")
pocket7.Profile = sketch9
pocket7.setExpression("Length", "Params.pocket7_length")
pocket7.Reversed = True
doc.recompute()

fillet = body.newObject("PartDesign::Fillet", "Fillet")
fillet.Base = (pocket7, edges_at(pocket7, [(8.5, -9, 0), (-8.5, -9, 0)]))
fillet.setExpression("Radius", "Params.fillet_radius")
doc.recompute()

fillet2 = body.newObject("PartDesign::Fillet", "Fillet001")
fillet2.Base = (fillet, edges_at(fillet, [(7, -9.5, 4.5), (-7, -9.5, 4.5)]))
fillet2.setExpression("Radius", "Params.fillet2_radius")

doc.recompute()
